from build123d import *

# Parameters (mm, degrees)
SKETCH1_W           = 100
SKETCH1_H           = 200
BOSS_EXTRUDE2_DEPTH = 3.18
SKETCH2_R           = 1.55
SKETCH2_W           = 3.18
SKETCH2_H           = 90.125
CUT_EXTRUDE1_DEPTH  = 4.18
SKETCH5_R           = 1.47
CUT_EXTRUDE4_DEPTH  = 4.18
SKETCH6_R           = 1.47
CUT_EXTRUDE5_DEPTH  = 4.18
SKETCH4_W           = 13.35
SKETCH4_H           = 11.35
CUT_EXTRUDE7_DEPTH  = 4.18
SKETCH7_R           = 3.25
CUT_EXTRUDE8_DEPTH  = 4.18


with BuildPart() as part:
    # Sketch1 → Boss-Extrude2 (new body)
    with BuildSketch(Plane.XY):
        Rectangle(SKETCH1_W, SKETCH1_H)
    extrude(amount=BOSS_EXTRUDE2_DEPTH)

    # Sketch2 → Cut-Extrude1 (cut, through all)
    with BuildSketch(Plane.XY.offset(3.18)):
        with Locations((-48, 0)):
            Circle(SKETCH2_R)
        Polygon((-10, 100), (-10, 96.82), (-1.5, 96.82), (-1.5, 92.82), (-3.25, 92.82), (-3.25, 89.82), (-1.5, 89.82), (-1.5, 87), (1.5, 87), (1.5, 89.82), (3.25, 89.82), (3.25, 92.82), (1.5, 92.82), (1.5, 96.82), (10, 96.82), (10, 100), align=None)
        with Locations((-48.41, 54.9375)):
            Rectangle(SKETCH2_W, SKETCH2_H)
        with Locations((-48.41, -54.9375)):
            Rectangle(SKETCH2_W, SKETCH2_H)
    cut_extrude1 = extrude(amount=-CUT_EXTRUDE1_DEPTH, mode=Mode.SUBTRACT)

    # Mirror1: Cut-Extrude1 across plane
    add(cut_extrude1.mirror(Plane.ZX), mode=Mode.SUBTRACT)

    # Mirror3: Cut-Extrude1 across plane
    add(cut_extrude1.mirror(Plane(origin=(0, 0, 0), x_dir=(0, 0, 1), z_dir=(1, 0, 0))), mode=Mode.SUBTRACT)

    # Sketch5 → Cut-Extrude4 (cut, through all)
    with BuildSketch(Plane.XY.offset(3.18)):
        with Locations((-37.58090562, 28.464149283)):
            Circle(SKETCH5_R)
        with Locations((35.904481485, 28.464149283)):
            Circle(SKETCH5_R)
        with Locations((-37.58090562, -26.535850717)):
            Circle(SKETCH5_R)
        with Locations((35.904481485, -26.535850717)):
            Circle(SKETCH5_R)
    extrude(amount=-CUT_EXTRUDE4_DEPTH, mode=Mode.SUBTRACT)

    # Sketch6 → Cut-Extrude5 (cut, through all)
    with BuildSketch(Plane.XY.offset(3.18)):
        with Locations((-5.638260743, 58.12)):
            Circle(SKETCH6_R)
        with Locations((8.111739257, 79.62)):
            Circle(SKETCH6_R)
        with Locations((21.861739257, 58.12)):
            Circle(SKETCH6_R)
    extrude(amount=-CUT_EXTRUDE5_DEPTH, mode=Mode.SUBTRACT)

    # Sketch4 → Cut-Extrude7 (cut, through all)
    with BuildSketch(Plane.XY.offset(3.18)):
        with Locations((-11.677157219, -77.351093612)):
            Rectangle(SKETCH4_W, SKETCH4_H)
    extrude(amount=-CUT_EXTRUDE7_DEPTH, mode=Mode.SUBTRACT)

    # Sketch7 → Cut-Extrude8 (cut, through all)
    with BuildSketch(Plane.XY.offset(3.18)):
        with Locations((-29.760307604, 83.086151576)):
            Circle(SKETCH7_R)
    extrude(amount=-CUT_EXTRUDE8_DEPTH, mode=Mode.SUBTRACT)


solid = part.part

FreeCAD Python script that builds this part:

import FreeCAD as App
import Part
import Sketcher

V = App.Vector
Q = App.Units.Quantity

doc = App.newDocument("Part")
body = doc.addObject("PartDesign::Body", "Body")

# Sketch on XY plane
sketch1 = body.newObject("Sketcher::SketchObject", "Sketch")
sketch1.AttachmentSupport = (doc.getObject("XY_Plane"), [""])
sketch1.MapMode = "FlatFace"
sketch1.addGeometry(Part.LineSegment(V(-50, 100, 0), V(-50, -100, 0)), False)
sketch1.addGeometry(Part.LineSegment(V(-50, -100, 0), V(50, -100, 0)), False)
sketch1.addGeometry(Part.LineSegment(V(50, -100, 0), V(50, 100, 0)), False)
sketch1.addGeometry(Part.LineSegment(V(50, 100, 0), V(-50, 100, 0)), False)
sketch1.addConstraint(Sketcher.Constraint("Coincident", 0, 2, 1, 1))
sketch1.addConstraint(Sketcher.Constraint("Coincident", 1, 2, 2, 1))
sketch1.addConstraint(Sketcher.Constraint("Coincident", 2, 2, 3, 1))
sketch1.addConstraint(Sketcher.Constraint("Coincident", 3, 2, 0, 1))
sketch1.addConstraint(Sketcher.Constraint("Vertical", 0))
sketch1.addConstraint(Sketcher.Constraint("Horizontal", 1))
sketch1.addConstraint(Sketcher.Constraint("Vertical", 2))
sketch1.addConstraint(Sketcher.Constraint("Horizontal", 3))
sketch1.addConstraint(Sketcher.Constraint("Symmetric", 0, 2, 2, 2, -1, 1))
sketch1.addConstraint(Sketcher.Constraint("DistanceX", 1, 1, 1, 2, Q("100 mm")))
sketch1.addConstraint(Sketcher.Constraint("DistanceY", 0, 2, 0, 1, Q("200 mm")))
pad1 = body.newObject("PartDesign::Pad", "Pad")
pad1.Profile = sketch1
pad1.Length = 3.18

# Sketch on XY plane
sketch2 = body.newObject("Sketcher::SketchObject", "Sketch001")
sketch2.AttachmentSupport = (doc.getObject("XY_Plane"), [""])
sketch2.MapMode = "FlatFace"
sketch2.AttachmentOffset = App.Placement(V(0, 0, 3.18), App.Rotation())
sketch2.addGeometry(Part.Circle(V(-48, 0, 0), V(0, 0, 1), 1.6), False)
sketch2.addGeometry(Part.LineSegment(V(-10, 100, 0), V(-10, 96.8, 0)), False)
sketch2.addGeometry(Part.LineSegment(V(-10, 96.8, 0), V(-1.5, 96.8, 0)), False)
sketch2.addGeometry(Part.LineSegment(V(-1.5, 96.8, 0), V(-1.5, 92.8, 0)), False)
sketch2.addGeometry(Part.LineSegment(V(-1.5, 92.8, 0), V(-3.2, 92.8, 0)), False)
sketch2.addGeometry(Part.LineSegment(V(-3.2, 92.8, 0), V(-3.2, 89.8, 0)), False)
sketch2.addGeometry(Part.LineSegment(V(-3.2, 89.8, 0), V(-1.5, 89.8, 0)), False)
sketch2.addGeometry(Part.LineSegment(V(-1.5, 89.8, 0), V(-1.5, 87, 0)), False)
sketch2.addGeometry(Part.LineSegment(V(-1.5, 87, 0), V(1.5, 87, 0)), False)
sketch2.addGeometry(Part.LineSegment(V(1.5, 87, 0), V(1.5, 89.8, 0)), False)
sketch2.addGeometry(Part.LineSegment(V(1.5, 89.8, 0), V(3.2, 89.8, 0)), False)
sketch2.addGeometry(Part.LineSegment(V(3.2, 89.8, 0), V(3.2, 92.8, 0)), False)
sketch2.addGeometry(Part.LineSegment(V(3.2, 92.8, 0), V(1.5, 92.8, 0)), False)
sketch2.addGeometry(Part.LineSegment(V(1.5, 92.8, 0), V(1.5, 96.8, 0)), False)
sketch2.addGeometry(Part.LineSegment(V(1.5, 96.8, 0), V(10, 96.8, 0)), False)
sketch2.addGeometry(Part.LineSegment(V(10, 96.8, 0), V(10, 100, 0)), False)
sketch2.addGeometry(Part.LineSegment(V(10, 100, 0), V(-10, 100, 0)), False)
sketch2.addGeometry(Part.LineSegment(V(-50, 100, 0), V(-50, 9.9, 0)), False)
sketch2.addGeometry(Part.LineSegment(V(-50, 9.9, 0), V(-46.8, 9.9, 0)), False)
sketch2.addGeometry(Part.LineSegment(V(-46.8, 9.9, 0), V(-46.8, 100, 0)), False)
sketch2.addGeometry(Part.LineSegment(V(-46.8, 100, 0), V(-50, 100, 0)), False)
sketch2.addGeometry(Part.LineSegment(V(-50, -9.9, 0), V(-50, -100, 0)), False)
sketch2.addGeometry(Part.LineSegment(V(-50, -100, 0), V(-46.8, -100, 0)), False)
sketch2.addGeometry(Part.LineSegment(V(-46.8, -100, 0), V(-46.8, -9.9, 0)), False)
sketch2.addGeometry(Part.LineSegment(V(-46.8, -9.9, 0), V(-50, -9.9, 0)), False)
sketch2.addConstraint(Sketcher.Constraint("Coincident", 1, 2, 2, 1))
sketch2.addConstraint(Sketcher.Constraint("Coincident", 2, 2, 3, 1))
sketch2.addConstraint(Sketcher.Constraint("Coincident", 3, 2, 4, 1))
sketch2.addConstraint(Sketcher.Constraint("Coincident", 4, 2, 5, 1))
sketch2.addConstraint(Sketcher.Constraint("Coincident", 5, 2, 6, 1))
sketch2.addConstraint(Sketcher.Constraint("Coincident", 6, 2, 7, 1))
sketch2.addConstraint(Sketcher.Constraint("Coincident", 7, 2, 8, 1))
sketch2.addConstraint(Sketcher.Constraint("Coincident", 8, 2, 9, 1))
sketch2.addConstraint(Sketcher.Constraint("Coincident", 9, 2, 10, 1))
sketch2.addConstraint(Sketcher.Constraint("Coincident", 10, 2, 11, 1))
sketch2.addConstraint(Sketcher.Constraint("Coincident", 11, 2, 12, 1))
sketch2.addConstraint(Sketcher.Constraint("Coincident", 12, 2, 13, 1))
sketch2.addConstraint(Sketcher.Constraint("Coincident", 13, 2, 14, 1))
sketch2.addConstraint(Sketcher.Constraint("Coincident", 14, 2, 15, 1))
sketch2.addConstraint(Sketcher.Constraint("Coincident", 15, 2, 16, 1))
sketch2.addConstraint(Sketcher.Constraint("Coincident", 16, 2, 1, 1))
sketch2.addConstraint(Sketcher.Constraint("Coincident", 17, 2, 18, 1))
sketch2.addConstraint(Sketcher.Constraint("Coincident", 18, 2, 19, 1))
sketch2.addConstraint(Sketcher.Constraint("Coincident", 19, 2, 20, 1))
sketch2.addConstraint(Sketcher.Constraint("Coincident", 20, 2, 17, 1))
sketch2.addConstraint(Sketcher.Constraint("Coincident", 21, 2, 22, 1))
sketch2.addConstraint(Sketcher.Constraint("Coincident", 22, 2, 23, 1))
sketch2.addConstraint(Sketcher.Constraint("Coincident", 23, 2, 24, 1))
sketch2.addConstraint(Sketcher.Constraint("Coincident", 24, 2, 21, 1))
sketch2.addConstraint(Sketcher.Constraint("Vertical", 1))
sketch2.addConstraint(Sketcher.Constraint("Horizontal", 2))
sketch2.addConstraint(Sketcher.Constraint("Vertical", 3))
sketch2.addConstraint(Sketcher.Constraint("Horizontal", 4))
sketch2.addConstraint(Sketcher.Constraint("Vertical", 5))
sketch2.addConstraint(Sketcher.Constraint("Horizontal", 6))
sketch2.addConstraint(Sketcher.Constraint("Vertical", 7))
sketch2.addConstraint(Sketcher.Constraint("Horizontal", 8))
sketch2.addConstraint(Sketcher.Constraint("Vertical", 9))
sketch2.addConstraint(Sketcher.Constraint("Horizontal", 10))
sketch2.addConstraint(Sketcher.Constraint("Vertical", 11))
sketch2.addConstraint(Sketcher.Constraint("Horizontal", 12))
sketch2.addConstraint(Sketcher.Constraint("Vertical", 13))
sketch2.addConstraint(Sketcher.Constraint("Horizontal", 14))
sketch2.addConstraint(Sketcher.Constraint("Vertical", 15))
sketch2.addConstraint(Sketcher.Constraint("Horizontal", 16))
sketch2.addConstraint(Sketcher.Constraint("Vertical", 17))
sketch2.addConstraint(Sketcher.Constraint("Horizontal", 18))
sketch2.addConstraint(Sketcher.Constraint("Vertical", 19))
sketch2.addConstraint(Sketcher.Constraint("Horizontal", 20))
sketch2.addConstraint(Sketcher.Constraint("Vertical", 21))
sketch2.addConstraint(Sketcher.Constraint("Horizontal", 22))
sketch2.addConstraint(Sketcher.Constraint("Vertical", 23))
sketch2.addConstraint(Sketcher.Constraint("Horizontal", 24))
sketch2.addConstraint(Sketcher.Constraint("Symmetric", 6, 2, 9, 2, -2))
sketch2.addConstraint(Sketcher.Constraint("Symmetric", 4, 2, 11, 2, -2))
sketch2.addConstraint(Sketcher.Constraint("Symmetric", 2, 2, 13, 2, -2))
sketch2.addConstraint(Sketcher.Constraint("Symmetric", 20, 2, 21, 2, -1))
sketch2.addConstraint(Sketcher.Constraint("Symmetric", 18, 2, 23, 2, -1))
sketch2.addConstraint(Sketcher.Constraint("PointOnObject", 0, 3, -1))
sketch2.addConstraint(Sketcher.Constraint("Horizontal", 16, 2, 19, 2))
sketch2.addConstraint(Sketcher.Constraint("Vertical", 3, 2, 6, 2))
sketch2.addConstraint(Sketcher.Constraint("Equal", 2, 14))
sketch2.addConstraint(Sketcher.Constraint("Equal", 24, 1))
sketch2.addConstraint(Sketcher.Constraint("Equal", 8, 5))
sketch2.addConstraint(Sketcher.Constraint("Diameter", 0, Q("3.1 mm")))
sketch2.addConstraint(Sketcher.Constraint("DistanceX", 8, 1, 8, 2, Q("3 mm")))
sketch2.addConstraint(Sketcher.Constraint("DistanceX", 16, 2, 16, 1, Q("20 mm")))
sketch2.addConstraint(Sketcher.Constraint("DistanceY", 3, 2, 3, 1, Q("4 mm")))
sketch2.addConstraint(Sketcher.Constraint("DistanceX", 0, 3, -1, 1, Q("48 mm")))
sketch2.addConstraint(Sketcher.Constraint("DistanceY", -1, 1, 7, 2, Q("87 mm")))
sketch2.addConstraint(Sketcher.Constraint("DistanceY", -1, 1, 15, 2, Q("100 mm")))
sketch2.addConstraint(Sketcher.Constraint("DistanceX", 17, 2, -1, 1, Q("50 mm")))
sketch2.addConstraint(Sketcher.Constraint("DistanceX", 4, 2, 4, 1, Q("1.75 mm")))
sketch2.addConstraint(Sketcher.Constraint("DistanceX", 18, 1, 18, 2, Q("3.18 mm")))
sketch2.addConstraint(Sketcher.Constraint("DistanceY", 17, 2, 17, 1, Q("90.125 mm")))
pocket1 = body.newObject("PartDesign::Pocket", "Pocket")
pocket1.Profile = sketch2
pocket1.Type = "ThroughAll"
doc.recompute()

mirrored = body.newObject("PartDesign::Mirrored", "Mirrored")
mirrored.Originals = [pocket1]
mirrored.MirrorPlane = (doc.getObject("XZ_Plane"), [""])
body.Tip = mirrored
doc.recompute()

mirrored2 = body.newObject("PartDesign::Mirrored", "Mirrored001")
mirrored2.Originals = [pocket1]
mirrored2.MirrorPlane = (doc.getObject("YZ_Plane"), [""])
body.Tip = mirrored2

# Sketch on XY plane
sketch3 = body.newObject("Sketcher::SketchObject", "Sketch002")
sketch3.AttachmentSupport = (doc.getObject("XY_Plane"), [""])
sketch3.MapMode = "FlatFace"
sketch3.AttachmentOffset = App.Placement(V(0, 0, 3.18), App.Rotation())
sketch3.addGeometry(Part.Circle(V(-37.6, 28.5, 0), V(0, 0, 1), 1.5), False)
sketch3.addGeometry(Part.Circle(V(35.9, 28.5, 0), V(0, 0, 1), 1.5), False)
sketch3.addGeometry(Part.Circle(V(-37.6, -26.5, 0), V(0, 0, 1), 1.5), False)
sketch3.addGeometry(Part.Circle(V(35.9, -26.5, 0), V(0, 0, 1), 1.5), False)
sketch3.addConstraint(Sketcher.Constraint("Equal", 0, 1))
sketch3.addConstraint(Sketcher.Constraint("Equal", 1, 2))
sketch3.addConstraint(Sketcher.Constraint("Equal", 2, 3))
sketch3.addConstraint(Sketcher.Constraint("Horizontal", 0, 3, 1, 3))
sketch3.addConstraint(Sketcher.Constraint("Horizontal", 2, 3, 3, 3))
sketch3.addConstraint(Sketcher.Constraint("Vertical", 0, 3, 2, 3))
sketch3.addConstraint(Sketcher.Constraint("Vertical", 1, 3, 3, 3))
sketch3.addConstraint(Sketcher.Constraint("Diameter", 0, Q("2.94 mm")))
sketch3.addConstraint(Sketcher.Constraint("DistanceY", 2, 3, 0, 3, Q("55 mm")))
sketch3.addConstraint(Sketcher.Constraint("DistanceY", -1, 1, 0, 3, Q("28.464149 mm")))
sketch3.addConstraint(Sketcher.Constraint("DistanceX", -1, 1, 1, 3, Q("35.904481 mm")))
sketch3.addConstraint(Sketcher.Constraint("DistanceX", 0, 3, -1, 1, Q("37.580906 mm")))
pocket2 = body.newObject("PartDesign::Pocket", "Pocket001")
pocket2.Profile = sketch3
pocket2.Type = "ThroughAll"

# Sketch on XY plane
sketch4 = body.newObject("Sketcher::SketchObject", "Sketch003")
sketch4.AttachmentSupport = (doc.getObject("XY_Plane"), [""])
sketch4.MapMode = "FlatFace"
sketch4.AttachmentOffset = App.Placement(V(0, 0, 3.18), App.Rotation())
sketch4.addGeometry(Part.Circle(V(-5.6, 58.1, 0), V(0, 0, 1), 1.5), False)
sketch4.addGeometry(Part.Circle(V(8.1, 79.6, 0), V(0, 0, 1), 1.5), False)
sketch4.addGeometry(Part.Circle(V(21.9, 58.1, 0), V(0, 0, 1), 1.5), False)
sketch4.addConstraint(Sketcher.Constraint("Equal", 0, 1))
sketch4.addConstraint(Sketcher.Constraint("Equal", 1, 2))
sketch4.addConstraint(Sketcher.Constraint("Horizontal", 0, 3, 2, 3))
sketch4.addConstraint(Sketcher.Constraint("Diameter", 0, Q("2.94 mm")))
sketch4.addConstraint(Sketcher.Constraint("DistanceY", 0, 3, 1, 3, Q("21.5 mm")))
sketch4.addConstraint(Sketcher.Constraint("DistanceX", 0, 3, 2, 3, Q("27.5 mm")))
sketch4.addConstraint(Sketcher.Constraint("DistanceY", -1, 1, 0, 3, Q("58.12 mm")))
sketch4.addConstraint(Sketcher.Constraint("DistanceX", 0, 3, 1, 3, Q("13.75 mm")))
sketch4.addConstraint(Sketcher.Constraint("DistanceX", 0, 3, -1, 1, Q("5.638261 mm")))
pocket3 = body.newObject("PartDesign::Pocket", "Pocket002")
pocket3.Profile = sketch4
pocket3.Type = "ThroughAll"

# Sketch on XY plane
sketch5 = body.newObject("Sketcher::SketchObject", "Sketch004")
sketch5.AttachmentSupport = (doc.getObject("XY_Plane"), [""])
sketch5.MapMode = "FlatFace"
sketch5.AttachmentOffset = App.Placement(V(0, 0, 3.18), App.Rotation())
sketch5.addGeometry(Part.LineSegment(V(-18, -72, 0), V(-18, -83, 0)), False)
sketch5.addGeometry(Part.LineSegment(V(-18, -83, 0), V(-5, -83, 0)), False)
sketch5.addGeometry(Part.LineSegment(V(-5, -83, 0), V(-5, -72, 0)), False)
sketch5.addGeometry(Part.LineSegment(V(-5, -72, 0), V(-18, -72, 0)), False)
sketch5.addConstraint(Sketcher.Constraint("Coincident", 0, 2, 1, 1))
sketch5.addConstraint(Sketcher.Constraint("Coincident", 1, 2, 2, 1))
sketch5.addConstraint(Sketcher.Constraint("Coincident", 2, 2, 3, 1))
sketch5.addConstraint(Sketcher.Constraint("Coincident", 3, 2, 0, 1))
sketch5.addConstraint(Sketcher.Constraint("Vertical", 0))
sketch5.addConstraint(Sketcher.Constraint("Horizontal", 1))
sketch5.addConstraint(Sketcher.Constraint("Vertical", 2))
sketch5.addConstraint(Sketcher.Constraint("Horizontal", 3))
sketch5.addConstraint(Sketcher.Constraint("DistanceX", 1, 1, 1, 2, Q("13.35 mm")))
sketch5.addConstraint(Sketcher.Constraint("DistanceY", 0, 2, 0, 1, Q("11.35 mm")))
sketch5.addConstraint(Sketcher.Constraint("DistanceX", 0, 2, -1, 1, Q("18.352157 mm")))
sketch5.addConstraint(Sketcher.Constraint("DistanceY", 0, 2, -1, 1, Q("83.026094 mm")))
pocket4 = body.newObject("PartDesign::Pocket", "Pocket003")
pocket4.Profile = sketch5
pocket4.Type = "ThroughAll"

# Sketch on XY plane
sketch6 = body.newObject("Sketcher::SketchObject", "Sketch005")
sketch6.AttachmentSupport = (doc.getObject("XY_Plane"), [""])
sketch6.MapMode = "FlatFace"
sketch6.AttachmentOffset = App.Placement(V(0, 0, 3.18), App.Rotation())
sketch6.addGeometry(Part.Circle(V(-29.8, 83.1, 0), V(0, 0, 1), 3.2), False)
sketch6.addConstraint(Sketcher.Constraint("Diameter", 0, Q("6.5 mm")))
sketch6.addConstraint(Sketcher.Constraint("DistanceY", -1, 1, 0, 3, Q("83.086152 mm")))
sketch6.addConstraint(Sketcher.Constraint("DistanceX", 0, 3, -1, 1, Q("29.760308 mm")))
pocket5 = body.newObject("PartDesign::Pocket", "Pocket004")
pocket5.Profile = sketch6
pocket5.Type = "ThroughAll"

doc.recompute()
